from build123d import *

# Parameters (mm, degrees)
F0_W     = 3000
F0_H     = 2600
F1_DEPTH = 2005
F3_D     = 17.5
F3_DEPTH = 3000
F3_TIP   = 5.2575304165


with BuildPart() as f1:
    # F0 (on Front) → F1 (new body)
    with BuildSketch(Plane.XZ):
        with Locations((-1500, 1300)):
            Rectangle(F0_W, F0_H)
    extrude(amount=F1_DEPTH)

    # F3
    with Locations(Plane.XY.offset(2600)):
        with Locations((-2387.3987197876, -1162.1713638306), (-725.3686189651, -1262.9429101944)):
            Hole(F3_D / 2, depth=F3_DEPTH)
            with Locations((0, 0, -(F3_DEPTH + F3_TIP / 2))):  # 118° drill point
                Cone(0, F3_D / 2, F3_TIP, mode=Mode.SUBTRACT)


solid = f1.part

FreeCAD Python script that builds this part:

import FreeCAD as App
import Part
import Sketcher
from FreeCAD import Vector
Q = App.Units.Quantity


def add_polygon(sketch, points):
    """Adds a closed chain of lines whose ends are joined by coincident constraints."""
    first, n = sketch.GeometryCount, len(points)
    for a, b in zip(points, points[1:] + points[:1]):
        sketch.addGeometry(Part.LineSegment(App.Vector(*a, 0), App.Vector(*b, 0)), False)
    for i in range(n):
        sketch.addConstraint(Sketcher.Constraint("Coincident", first + i, 2, first + (i + 1) % n, 1))

doc = App.newDocument("Part")
body = doc.addObject("PartDesign::Body", "Body")

# Sketch on XZ plane
sketch1 = body.newObject("Sketcher::SketchObject", "Sketch")
sketch1.AttachmentSupport = (doc.getObject("XZ_Plane"), [""])
sketch1.MapMode = "FlatFace"
add_polygon(sketch1, [(-3000, 2600), (-3000, 0), (0, 0), (0, 2600)])  # lines 0-3
sketch1.addConstraint(Sketcher.Constraint("Vertical", 0))
sketch1.addConstraint(Sketcher.Constraint("Horizontal", 1))
sketch1.addConstraint(Sketcher.Constraint("Vertical", 2))
sketch1.addConstraint(Sketcher.Constraint("Horizontal", 3))
sketch1.addConstraint(Sketcher.Constraint("Coincident", 1, 2, -1, 1))
sketch1.addConstraint(Sketcher.Constraint("DistanceX", 1, 1, 1, 2, Q("3000 mm")))
sketch1.addConstraint(Sketcher.Constraint("DistanceY", 0, 2, 0, 1, Q("2600 mm")))
pad1 = body.newObject("PartDesign::Pad", "Pad")
pad1.Profile = sketch1
pad1.Length = 2005

# Sketch on XY plane
sketch2 = body.newObject("Sketcher::SketchObject", "Sketch001")
sketch2.AttachmentSupport = (doc.getObject("XY_Plane"), [""])
sketch2.MapMode = "FlatFace"
sketch2.AttachmentOffset = App.Placement(Vector(0, 0, 2600), App.Rotation())
sketch2.addGeometry(Part.Circle(Vector(-2387, -1162, 0), Vector(0, 0, 1), 9), False)
sketch2.addGeometry(Part.Circle(Vector(-725, -1263, 0), Vector(0, 0, 1), 9), False)
sketch2.addConstraint(Sketcher.Constraint("Equal", 0, 1))
sketch2.addConstraint(Sketcher.Constraint("Diameter", 0, Q("17.5 mm")))
sketch2.addConstraint(Sketcher.Constraint("DistanceX", 0, 3, 1, 3, Q("1662.030101 mm")))
sketch2.addConstraint(Sketcher.Constraint("DistanceX", 0, 3, -1, 1, Q("2387.39872 mm")))
sketch2.addConstraint(Sketcher.Constraint("DistanceY", 1, 3, -1, 1, Q("1262.94291 mm")))
sketch2.addConstraint(Sketcher.Constraint("DistanceY", 0, 3, -1, 1, Q("1162.171364 mm")))
doc.recompute()
hole = body.newObject("PartDesign::Hole", "Hole")
hole.Profile = sketch2
hole.ThreadType = "None"
hole.Diameter = 17.5
hole.DepthType = "Dimension"
hole.Depth = 3000
hole.DrillPoint = "Angled"
hole.DrillPointAngle = 118

doc.recompute()
